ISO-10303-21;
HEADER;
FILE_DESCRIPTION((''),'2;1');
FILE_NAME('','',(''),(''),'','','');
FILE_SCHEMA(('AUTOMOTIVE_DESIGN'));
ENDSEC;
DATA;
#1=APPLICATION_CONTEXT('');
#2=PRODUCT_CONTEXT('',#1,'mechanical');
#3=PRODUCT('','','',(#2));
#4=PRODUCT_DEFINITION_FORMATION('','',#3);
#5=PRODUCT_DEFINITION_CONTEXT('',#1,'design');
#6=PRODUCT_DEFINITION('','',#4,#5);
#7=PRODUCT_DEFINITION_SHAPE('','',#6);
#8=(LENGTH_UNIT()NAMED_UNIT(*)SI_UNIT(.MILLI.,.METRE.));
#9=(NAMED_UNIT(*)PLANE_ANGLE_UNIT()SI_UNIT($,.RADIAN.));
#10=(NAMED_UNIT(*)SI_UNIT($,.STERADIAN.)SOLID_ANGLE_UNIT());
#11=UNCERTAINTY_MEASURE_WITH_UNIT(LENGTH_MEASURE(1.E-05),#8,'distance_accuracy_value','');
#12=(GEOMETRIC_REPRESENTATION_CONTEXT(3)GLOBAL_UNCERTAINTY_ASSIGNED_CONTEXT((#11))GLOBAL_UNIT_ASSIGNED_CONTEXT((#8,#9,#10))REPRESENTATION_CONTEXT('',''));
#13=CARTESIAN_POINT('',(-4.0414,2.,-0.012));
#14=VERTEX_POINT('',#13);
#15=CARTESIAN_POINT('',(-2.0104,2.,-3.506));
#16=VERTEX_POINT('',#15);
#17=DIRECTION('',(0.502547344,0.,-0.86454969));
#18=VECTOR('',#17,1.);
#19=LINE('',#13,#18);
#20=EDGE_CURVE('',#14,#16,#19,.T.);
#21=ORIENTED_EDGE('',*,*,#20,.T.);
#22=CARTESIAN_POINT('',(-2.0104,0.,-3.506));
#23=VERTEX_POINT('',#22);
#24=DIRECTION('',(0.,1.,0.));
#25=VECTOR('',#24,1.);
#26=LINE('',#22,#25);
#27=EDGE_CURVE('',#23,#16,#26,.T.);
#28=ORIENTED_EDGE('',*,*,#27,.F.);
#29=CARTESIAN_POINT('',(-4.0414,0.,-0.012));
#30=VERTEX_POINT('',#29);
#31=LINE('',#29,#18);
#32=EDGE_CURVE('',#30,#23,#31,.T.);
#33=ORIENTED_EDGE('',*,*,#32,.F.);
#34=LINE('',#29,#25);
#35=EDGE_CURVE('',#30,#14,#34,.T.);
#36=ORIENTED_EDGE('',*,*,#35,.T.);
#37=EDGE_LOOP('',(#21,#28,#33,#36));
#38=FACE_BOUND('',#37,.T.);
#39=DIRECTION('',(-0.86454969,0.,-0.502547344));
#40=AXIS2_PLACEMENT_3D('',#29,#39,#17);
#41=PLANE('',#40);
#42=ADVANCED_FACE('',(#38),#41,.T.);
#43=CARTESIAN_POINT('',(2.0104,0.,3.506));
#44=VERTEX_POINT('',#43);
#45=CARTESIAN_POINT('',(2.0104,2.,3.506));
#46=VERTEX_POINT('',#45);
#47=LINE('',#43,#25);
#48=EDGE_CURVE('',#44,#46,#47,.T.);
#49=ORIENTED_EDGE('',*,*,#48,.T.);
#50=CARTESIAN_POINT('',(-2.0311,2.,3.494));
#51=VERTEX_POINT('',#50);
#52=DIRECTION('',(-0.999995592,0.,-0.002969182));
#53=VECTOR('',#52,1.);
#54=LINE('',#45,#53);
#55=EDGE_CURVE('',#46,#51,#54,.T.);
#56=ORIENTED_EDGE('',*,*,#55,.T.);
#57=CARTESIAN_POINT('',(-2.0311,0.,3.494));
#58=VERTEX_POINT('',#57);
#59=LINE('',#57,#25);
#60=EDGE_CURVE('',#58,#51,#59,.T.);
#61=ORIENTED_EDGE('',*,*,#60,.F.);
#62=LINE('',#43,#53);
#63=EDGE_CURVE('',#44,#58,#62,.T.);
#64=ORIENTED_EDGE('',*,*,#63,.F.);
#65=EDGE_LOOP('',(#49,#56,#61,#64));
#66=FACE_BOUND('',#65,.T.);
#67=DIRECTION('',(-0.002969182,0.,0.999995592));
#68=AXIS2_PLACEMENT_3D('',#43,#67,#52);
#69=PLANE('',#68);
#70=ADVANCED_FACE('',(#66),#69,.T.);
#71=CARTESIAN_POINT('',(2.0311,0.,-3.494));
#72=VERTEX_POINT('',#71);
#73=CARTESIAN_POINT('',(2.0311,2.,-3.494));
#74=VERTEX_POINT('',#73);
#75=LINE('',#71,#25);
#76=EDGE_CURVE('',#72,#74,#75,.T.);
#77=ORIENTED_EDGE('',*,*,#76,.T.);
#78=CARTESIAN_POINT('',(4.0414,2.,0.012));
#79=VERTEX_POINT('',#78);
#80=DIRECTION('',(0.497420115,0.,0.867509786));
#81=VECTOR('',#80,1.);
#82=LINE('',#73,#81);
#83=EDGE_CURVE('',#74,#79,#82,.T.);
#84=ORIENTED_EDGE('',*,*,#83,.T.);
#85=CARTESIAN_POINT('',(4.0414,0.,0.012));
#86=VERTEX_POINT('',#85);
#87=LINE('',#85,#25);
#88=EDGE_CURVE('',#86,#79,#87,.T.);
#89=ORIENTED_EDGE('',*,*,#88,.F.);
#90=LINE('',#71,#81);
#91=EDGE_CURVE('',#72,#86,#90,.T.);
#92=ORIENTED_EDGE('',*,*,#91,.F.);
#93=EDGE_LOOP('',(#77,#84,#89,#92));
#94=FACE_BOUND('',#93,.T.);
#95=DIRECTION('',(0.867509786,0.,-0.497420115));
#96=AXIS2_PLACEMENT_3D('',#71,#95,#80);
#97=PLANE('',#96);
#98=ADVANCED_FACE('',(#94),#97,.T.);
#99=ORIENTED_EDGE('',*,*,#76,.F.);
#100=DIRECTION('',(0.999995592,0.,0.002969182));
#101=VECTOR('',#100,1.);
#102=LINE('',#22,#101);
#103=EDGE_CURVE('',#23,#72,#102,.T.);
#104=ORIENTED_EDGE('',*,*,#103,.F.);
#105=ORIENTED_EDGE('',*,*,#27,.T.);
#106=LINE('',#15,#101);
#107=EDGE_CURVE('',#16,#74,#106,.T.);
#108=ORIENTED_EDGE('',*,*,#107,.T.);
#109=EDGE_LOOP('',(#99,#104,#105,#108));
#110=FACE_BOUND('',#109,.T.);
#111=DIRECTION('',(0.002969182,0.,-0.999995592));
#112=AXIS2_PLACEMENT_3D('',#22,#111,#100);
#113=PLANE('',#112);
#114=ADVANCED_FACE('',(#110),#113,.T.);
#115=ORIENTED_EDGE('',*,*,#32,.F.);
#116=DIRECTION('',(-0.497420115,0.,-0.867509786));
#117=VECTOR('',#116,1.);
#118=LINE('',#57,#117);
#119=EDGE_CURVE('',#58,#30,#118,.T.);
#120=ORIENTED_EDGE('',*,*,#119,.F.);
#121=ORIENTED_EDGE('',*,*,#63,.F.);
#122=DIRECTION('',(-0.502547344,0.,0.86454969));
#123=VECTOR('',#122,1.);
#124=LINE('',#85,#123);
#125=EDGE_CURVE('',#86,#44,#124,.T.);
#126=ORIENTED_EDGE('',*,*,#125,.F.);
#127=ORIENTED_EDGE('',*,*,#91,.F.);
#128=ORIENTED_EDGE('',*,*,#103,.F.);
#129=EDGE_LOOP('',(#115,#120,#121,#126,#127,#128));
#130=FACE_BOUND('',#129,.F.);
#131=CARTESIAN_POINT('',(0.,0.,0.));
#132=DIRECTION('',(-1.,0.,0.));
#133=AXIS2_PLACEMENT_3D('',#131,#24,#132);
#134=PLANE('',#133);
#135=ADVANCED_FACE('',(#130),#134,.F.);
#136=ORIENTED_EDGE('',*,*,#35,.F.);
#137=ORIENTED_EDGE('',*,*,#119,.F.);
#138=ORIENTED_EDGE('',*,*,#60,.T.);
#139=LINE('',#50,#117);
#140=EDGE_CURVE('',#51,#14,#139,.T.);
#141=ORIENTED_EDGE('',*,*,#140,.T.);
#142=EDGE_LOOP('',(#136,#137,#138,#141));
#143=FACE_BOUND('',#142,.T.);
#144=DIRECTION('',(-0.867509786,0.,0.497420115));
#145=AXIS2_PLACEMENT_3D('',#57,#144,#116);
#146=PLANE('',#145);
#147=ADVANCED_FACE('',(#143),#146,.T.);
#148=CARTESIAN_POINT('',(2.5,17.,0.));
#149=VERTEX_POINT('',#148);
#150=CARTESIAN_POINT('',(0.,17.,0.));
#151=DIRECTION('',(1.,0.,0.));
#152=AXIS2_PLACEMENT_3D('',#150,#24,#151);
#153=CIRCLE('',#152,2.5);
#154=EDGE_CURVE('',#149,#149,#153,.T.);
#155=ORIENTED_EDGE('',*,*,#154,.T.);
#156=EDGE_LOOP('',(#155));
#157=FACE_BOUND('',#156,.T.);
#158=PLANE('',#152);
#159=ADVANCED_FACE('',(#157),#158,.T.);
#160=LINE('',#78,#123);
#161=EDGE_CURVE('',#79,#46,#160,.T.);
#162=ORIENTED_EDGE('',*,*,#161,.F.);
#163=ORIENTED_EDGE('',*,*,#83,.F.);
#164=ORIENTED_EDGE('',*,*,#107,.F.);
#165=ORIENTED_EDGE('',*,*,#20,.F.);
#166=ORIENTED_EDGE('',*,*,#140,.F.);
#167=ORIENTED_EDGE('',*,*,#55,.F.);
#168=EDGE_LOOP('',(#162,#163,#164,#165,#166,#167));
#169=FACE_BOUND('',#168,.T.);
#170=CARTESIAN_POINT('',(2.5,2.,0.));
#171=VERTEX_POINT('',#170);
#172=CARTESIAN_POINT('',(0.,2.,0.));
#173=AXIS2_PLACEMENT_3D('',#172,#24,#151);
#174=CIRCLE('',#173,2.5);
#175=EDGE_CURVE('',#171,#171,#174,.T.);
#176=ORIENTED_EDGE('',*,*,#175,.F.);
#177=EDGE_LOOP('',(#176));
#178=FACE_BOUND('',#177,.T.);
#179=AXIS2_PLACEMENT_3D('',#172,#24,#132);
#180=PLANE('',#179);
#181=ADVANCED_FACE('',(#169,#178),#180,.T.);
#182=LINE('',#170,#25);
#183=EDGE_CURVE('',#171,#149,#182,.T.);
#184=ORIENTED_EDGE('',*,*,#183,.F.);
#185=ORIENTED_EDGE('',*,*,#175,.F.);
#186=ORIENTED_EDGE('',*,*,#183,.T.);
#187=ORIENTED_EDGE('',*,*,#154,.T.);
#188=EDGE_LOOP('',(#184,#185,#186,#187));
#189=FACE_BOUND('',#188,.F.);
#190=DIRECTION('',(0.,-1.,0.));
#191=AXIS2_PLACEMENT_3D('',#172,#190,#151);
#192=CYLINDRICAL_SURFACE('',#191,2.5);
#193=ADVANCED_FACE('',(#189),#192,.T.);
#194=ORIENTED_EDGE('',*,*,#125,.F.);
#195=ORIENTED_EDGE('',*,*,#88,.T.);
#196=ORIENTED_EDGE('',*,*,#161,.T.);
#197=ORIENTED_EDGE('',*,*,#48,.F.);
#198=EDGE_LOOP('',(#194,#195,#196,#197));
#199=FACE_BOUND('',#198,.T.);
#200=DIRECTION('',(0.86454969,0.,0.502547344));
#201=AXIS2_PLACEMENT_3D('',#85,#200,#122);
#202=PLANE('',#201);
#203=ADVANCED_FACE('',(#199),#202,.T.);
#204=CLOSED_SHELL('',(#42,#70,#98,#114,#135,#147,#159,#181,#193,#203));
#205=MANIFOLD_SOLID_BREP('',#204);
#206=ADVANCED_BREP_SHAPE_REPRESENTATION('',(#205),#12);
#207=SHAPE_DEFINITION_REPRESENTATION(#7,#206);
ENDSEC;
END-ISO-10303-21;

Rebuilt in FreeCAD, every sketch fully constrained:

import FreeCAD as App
import Part
import Sketcher
from FreeCAD import Vector
Q = App.Units.Quantity

doc = App.newDocument("Part")
body = doc.addObject("PartDesign::Body", "Body")

# Sketch on XZ plane
sketch1 = body.newObject("Sketcher::SketchObject", "Sketch")
sketch1.AttachmentSupport = (doc.getObject("XZ_Plane"), [""])
sketch1.MapMode = "FlatFace"
sketch1.addGeometry([
    Part.LineSegment(Vector(4.0414, 0.012, 0), Vector(2.0311, -3.494, 0)),  # 0
    Part.LineSegment(Vector(2.0311, -3.494, 0), Vector(-2.0104, -3.506, 0)),  # 1
    Part.LineSegment(Vector(-2.0104, -3.506, 0), Vector(-4.0414, -0.012, 0)),  # 2
    Part.LineSegment(Vector(-4.0414, -0.012, 0), Vector(-2.0311, 3.494, 0)),  # 3
    Part.LineSegment(Vector(-2.0311, 3.494, 0), Vector(2.0104, 3.506, 0)),  # 4
    Part.LineSegment(Vector(2.0104, 3.506, 0), Vector(4.0414, 0.012, 0)),  # 5
], False)
sketch1.addConstraint([
    Sketcher.Constraint("Coincident", 0, 2, 1, 1),
    Sketcher.Constraint("Coincident", 1, 2, 2, 1),
    Sketcher.Constraint("Coincident", 2, 2, 3, 1),
    Sketcher.Constraint("Coincident", 3, 2, 4, 1),
    Sketcher.Constraint("Coincident", 4, 2, 5, 1),
    Sketcher.Constraint("Coincident", 5, 2, 0, 1),
    Sketcher.Constraint("Symmetric", 0, 2, 3, 2, -1, 1),
    Sketcher.Constraint("Symmetric", 1, 2, 4, 2, -1, 1),
    Sketcher.Constraint("Symmetric", 2, 2, 5, 2, -1, 1),
    Sketcher.Constraint("Equal", 0, 1),
    Sketcher.Constraint("Equal", 1, 2),
    Sketcher.Constraint("DistanceY", 1, 2, 3, 2, Q("7 mm")),
    Sketcher.Constraint("Angle", 0, Q("-119.8295 deg")),
    Sketcher.Constraint("Angle", 1, Q("-179.8299 deg")),
    Sketcher.Constraint("DistanceX", -1, 1, 0, 2, Q("2.031 mm")),
])
pad1 = body.newObject("PartDesign::Pad", "Pad")
pad1.Profile = sketch1
pad1.Length = 2
pad1.Reversed = True

# Sketch on XZ plane
sketch2 = body.newObject("Sketcher::SketchObject", "Sketch001")
sketch2.AttachmentSupport = (doc.getObject("XZ_Plane"), [""])
sketch2.MapMode = "FlatFace"
sketch2.AttachmentOffset = App.Placement(Vector(0, 0, -2), App.Rotation())
sketch2.addGeometry(Part.Circle(Vector(0, 0, 0), Vector(0, 0, 1), 2.5), False)
sketch2.addConstraint([
    Sketcher.Constraint("Coincident", 0, 3, -1, 1),
    Sketcher.Constraint("Diameter", 0, Q("5 mm")),
])
pad2 = body.newObject("PartDesign::Pad", "Pad001")
pad2.Profile = sketch2
pad2.Length = 15
pad2.Reversed = True

doc.recompute()
